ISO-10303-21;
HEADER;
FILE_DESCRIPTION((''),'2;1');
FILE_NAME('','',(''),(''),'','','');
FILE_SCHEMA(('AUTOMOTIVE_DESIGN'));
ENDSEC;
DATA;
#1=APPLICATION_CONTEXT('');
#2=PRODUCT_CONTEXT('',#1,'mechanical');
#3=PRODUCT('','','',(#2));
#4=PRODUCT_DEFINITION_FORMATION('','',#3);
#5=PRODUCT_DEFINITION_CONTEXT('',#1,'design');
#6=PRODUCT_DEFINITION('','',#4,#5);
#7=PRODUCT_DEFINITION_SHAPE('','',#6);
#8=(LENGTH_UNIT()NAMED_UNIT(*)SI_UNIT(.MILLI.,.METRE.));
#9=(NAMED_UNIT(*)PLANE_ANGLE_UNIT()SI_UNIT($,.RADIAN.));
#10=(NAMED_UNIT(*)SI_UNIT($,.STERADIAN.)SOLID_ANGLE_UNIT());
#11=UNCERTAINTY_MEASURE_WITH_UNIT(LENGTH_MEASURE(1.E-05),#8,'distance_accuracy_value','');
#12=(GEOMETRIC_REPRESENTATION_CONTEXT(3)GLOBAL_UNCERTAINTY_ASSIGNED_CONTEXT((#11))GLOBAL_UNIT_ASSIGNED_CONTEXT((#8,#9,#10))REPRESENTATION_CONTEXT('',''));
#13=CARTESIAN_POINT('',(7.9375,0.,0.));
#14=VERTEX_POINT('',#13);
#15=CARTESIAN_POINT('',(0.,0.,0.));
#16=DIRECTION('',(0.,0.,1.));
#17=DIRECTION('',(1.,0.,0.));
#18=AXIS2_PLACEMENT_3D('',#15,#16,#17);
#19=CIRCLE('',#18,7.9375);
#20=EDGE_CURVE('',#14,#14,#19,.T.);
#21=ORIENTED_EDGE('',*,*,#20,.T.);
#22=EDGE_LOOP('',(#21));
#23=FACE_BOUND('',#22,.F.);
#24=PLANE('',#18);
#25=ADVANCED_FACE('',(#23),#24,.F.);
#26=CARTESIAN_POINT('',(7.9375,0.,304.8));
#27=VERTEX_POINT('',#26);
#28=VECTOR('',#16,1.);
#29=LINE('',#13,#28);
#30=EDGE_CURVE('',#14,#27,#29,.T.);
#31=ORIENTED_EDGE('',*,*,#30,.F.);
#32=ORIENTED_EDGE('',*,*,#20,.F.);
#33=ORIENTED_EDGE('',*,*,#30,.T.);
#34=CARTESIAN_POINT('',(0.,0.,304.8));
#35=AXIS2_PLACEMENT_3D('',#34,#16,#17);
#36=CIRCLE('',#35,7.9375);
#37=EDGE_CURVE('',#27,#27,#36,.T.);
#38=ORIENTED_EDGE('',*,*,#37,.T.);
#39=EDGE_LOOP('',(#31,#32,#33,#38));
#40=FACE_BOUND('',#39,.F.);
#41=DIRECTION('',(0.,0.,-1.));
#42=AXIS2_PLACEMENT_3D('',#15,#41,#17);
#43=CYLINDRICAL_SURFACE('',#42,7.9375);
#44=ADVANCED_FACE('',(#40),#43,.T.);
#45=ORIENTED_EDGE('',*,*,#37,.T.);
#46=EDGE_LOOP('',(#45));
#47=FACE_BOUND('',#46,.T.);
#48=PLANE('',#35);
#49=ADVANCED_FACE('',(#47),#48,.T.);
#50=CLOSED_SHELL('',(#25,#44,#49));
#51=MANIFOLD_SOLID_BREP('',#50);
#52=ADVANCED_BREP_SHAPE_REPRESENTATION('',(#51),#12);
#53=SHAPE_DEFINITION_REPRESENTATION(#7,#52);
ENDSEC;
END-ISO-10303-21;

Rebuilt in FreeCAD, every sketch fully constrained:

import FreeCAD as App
import Part
import Sketcher
Q = App.Units.Quantity

doc = App.newDocument("Part")
params = doc.addObject("Spreadsheet::Sheet", "Params")
for row, (alias, value) in enumerate([
    ("sketch1_diameter", "0.625 in"),
    ("pad1_length", "12 in"),
], start=1):
    params.set(f"A{row}", alias)
    params.set(f"B{row}", "=" + value)
    params.setAlias(f"B{row}", alias)

body = doc.addObject("PartDesign::Body", "Body")

# Sketch on XY plane
sketch1 = body.newObject("Sketcher::SketchObject", "Sketch")
sketch1.AttachmentSupport = (doc.getObject("XY_Plane"), [""])
sketch1.MapMode = "FlatFace"
sketch1.addGeometry(Part.Circle(App.Vector(0, 0, 0), App.Vector(0, 0, 1), 7.9375), False)
sketch1.addConstraint(Sketcher.Constraint("Coincident", 0, 3, -1, 1))
sketch1.addConstraint(Sketcher.Constraint("Diameter", 0, Q("0.625 in")))
sketch1.setExpression("Constraints[1]", "Params.sketch1_diameter")
pad1 = body.newObject("PartDesign::Pad", "Pad")
pad1.Profile = sketch1
pad1.setExpression("Length", "Params.pad1_length")

doc.recompute()
